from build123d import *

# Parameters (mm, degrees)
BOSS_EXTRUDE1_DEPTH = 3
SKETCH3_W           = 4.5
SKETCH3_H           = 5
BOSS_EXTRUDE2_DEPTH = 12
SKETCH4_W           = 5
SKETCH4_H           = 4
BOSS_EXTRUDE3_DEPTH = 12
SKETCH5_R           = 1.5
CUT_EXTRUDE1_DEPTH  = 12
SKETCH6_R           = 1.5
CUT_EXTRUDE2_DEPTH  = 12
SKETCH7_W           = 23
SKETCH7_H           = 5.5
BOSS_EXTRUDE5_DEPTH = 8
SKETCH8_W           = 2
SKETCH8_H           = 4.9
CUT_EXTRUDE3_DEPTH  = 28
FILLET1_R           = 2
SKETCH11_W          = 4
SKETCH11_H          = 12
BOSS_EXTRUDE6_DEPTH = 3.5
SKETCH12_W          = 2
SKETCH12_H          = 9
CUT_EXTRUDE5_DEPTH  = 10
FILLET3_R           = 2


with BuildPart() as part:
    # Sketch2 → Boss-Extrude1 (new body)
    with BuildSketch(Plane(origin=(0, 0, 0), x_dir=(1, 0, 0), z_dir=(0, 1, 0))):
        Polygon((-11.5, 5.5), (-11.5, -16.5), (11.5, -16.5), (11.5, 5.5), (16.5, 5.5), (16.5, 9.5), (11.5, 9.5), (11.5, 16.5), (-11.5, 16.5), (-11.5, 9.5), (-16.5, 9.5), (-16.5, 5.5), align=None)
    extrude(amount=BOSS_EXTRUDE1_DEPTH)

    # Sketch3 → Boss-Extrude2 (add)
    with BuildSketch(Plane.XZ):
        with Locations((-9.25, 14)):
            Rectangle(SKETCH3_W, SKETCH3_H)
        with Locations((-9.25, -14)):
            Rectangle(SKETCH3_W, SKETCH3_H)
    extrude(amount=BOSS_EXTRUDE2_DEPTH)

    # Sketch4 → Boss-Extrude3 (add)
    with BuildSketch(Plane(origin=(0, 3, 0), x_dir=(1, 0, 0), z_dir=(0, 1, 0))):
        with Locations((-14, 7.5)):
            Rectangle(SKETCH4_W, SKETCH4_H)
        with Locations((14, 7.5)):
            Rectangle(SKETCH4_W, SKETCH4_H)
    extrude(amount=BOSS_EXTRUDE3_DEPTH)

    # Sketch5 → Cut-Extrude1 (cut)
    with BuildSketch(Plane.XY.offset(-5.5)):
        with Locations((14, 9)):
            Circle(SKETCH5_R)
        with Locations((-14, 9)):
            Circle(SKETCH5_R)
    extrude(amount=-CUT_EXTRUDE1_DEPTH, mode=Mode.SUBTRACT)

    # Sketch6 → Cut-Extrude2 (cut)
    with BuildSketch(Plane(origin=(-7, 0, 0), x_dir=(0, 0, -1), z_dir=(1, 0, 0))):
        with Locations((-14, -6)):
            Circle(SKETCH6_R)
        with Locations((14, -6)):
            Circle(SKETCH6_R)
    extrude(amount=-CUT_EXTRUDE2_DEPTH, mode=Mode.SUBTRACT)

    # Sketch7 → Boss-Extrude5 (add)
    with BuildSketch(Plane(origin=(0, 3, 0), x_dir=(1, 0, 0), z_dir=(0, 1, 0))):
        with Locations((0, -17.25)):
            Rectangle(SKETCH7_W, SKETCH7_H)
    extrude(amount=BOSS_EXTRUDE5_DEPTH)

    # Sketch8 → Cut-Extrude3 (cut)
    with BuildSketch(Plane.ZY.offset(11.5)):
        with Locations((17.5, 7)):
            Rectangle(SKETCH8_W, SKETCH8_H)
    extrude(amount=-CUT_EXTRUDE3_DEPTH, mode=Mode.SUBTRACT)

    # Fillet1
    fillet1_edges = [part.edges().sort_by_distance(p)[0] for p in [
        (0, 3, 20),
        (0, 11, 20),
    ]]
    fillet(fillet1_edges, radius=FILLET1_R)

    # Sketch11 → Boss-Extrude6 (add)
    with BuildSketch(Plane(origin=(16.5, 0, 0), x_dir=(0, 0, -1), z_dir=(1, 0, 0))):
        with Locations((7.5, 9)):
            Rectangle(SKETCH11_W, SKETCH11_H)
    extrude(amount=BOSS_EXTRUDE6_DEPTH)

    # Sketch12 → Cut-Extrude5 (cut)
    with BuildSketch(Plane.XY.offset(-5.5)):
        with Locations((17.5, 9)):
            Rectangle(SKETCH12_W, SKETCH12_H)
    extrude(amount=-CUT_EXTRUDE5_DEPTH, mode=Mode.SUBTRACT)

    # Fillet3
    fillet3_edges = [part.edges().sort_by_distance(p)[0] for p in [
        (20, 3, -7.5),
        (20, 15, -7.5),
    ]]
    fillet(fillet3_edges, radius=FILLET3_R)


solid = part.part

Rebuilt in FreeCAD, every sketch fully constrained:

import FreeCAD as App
import Part
import Sketcher
from FreeCAD import Vector


def edges_at(feature, points):
    """Names of the edges that pass closest to the given points."""
    edges = feature.Shape.Edges
    near = lambda p: min(range(len(edges)), key=lambda i: edges[i].distToShape(Part.Vertex(*p))[0])
    return sorted({f"Edge{near(p) + 1}" for p in points})


def add_polygon(sketch, points):
    """Adds a closed chain of lines whose ends are joined by coincident constraints."""
    first, n = sketch.GeometryCount, len(points)
    for a, b in zip(points, points[1:] + points[:1]):
        sketch.addGeometry(Part.LineSegment(App.Vector(*a, 0), App.Vector(*b, 0)), False)
    for i in range(n):
        sketch.addConstraint(Sketcher.Constraint("Coincident", first + i, 2, first + (i + 1) % n, 1))

doc = App.newDocument("Part")
params = doc.addObject("Spreadsheet::Sheet", "Params")
for row, (alias, value) in enumerate([
    ("sketch1_width", "23 mm"),
    ("sketch1_width2", "5 mm"),
    ("sketch1_height", "22 mm"),
    ("sketch1_height2", "4 mm"),
    ("sketch1_height3", "7 mm"),
    ("pad1_length", "3 mm"),
    ("sketch2_height", "5 mm"),
    ("sketch2_width", "4.5 mm"),
    ("pad2_length", "12 mm"),
    ("sketch3_width", "5 mm"),
    ("sketch3_height", "4 mm"),
    ("pad3_length", "12 mm"),
    ("sketch4_diameter", "3 mm"),
    ("pocket1_length", "12 mm"),
    ("sketch5_diameter", "3 mm"),
    ("pocket2_length", "12 mm"),
    ("sketch6_width", "23 mm"),
    ("sketch6_height", "5.5 mm"),
    ("pad4_length", "8 mm"),
    ("sketch7_height", "2 mm"),
    ("sketch7_width", "4.9 mm"),
    ("pocket3_length", "28 mm"),
    ("fillet_radius", "2 mm"),
    ("sketch8_width", "12 mm"),
    ("sketch8_height", "4 mm"),
    ("pad5_length", "3.5 mm"),
    ("sketch9_width", "2 mm"),
    ("sketch9_height", "9 mm"),
    ("pocket4_length", "10 mm"),
    ("fillet2_radius", "2 mm"),
], start=1):
    params.set(f"A{row}", alias)
    params.set(f"B{row}", "=" + value)
    params.setAlias(f"B{row}", alias)

body = doc.addObject("PartDesign::Body", "Body")

# Sketch on XZ plane
sketch1 = body.newObject("Sketcher::SketchObject", "Sketch")
sketch1.AttachmentSupport = (doc.getObject("XZ_Plane"), [""])
sketch1.MapMode = "FlatFace"
add_polygon(sketch1, [(-11.5, -5.5), (-11.5, 16.5), (11.5, 16.5), (11.5, -5.5), (16.5, -5.5), (16.5, -9.5), (11.5, -9.5), (11.5, -16.5), (-11.5, -16.5), (-11.5, -9.5), (-16.5, -9.5), (-16.5, -5.5)])  # lines 0-11
sketch1.addConstraint(Sketcher.Constraint("Vertical", 0))
sketch1.addConstraint(Sketcher.Constraint("Horizontal", 1))
sketch1.addConstraint(Sketcher.Constraint("Vertical", 2))
sketch1.addConstraint(Sketcher.Constraint("Horizontal", 3))
sketch1.addConstraint(Sketcher.Constraint("Vertical", 4))
sketch1.addConstraint(Sketcher.Constraint("Horizontal", 5))
sketch1.addConstraint(Sketcher.Constraint("Vertical", 6))
sketch1.addConstraint(Sketcher.Constraint("Horizontal", 7))
sketch1.addConstraint(Sketcher.Constraint("Vertical", 8))
sketch1.addConstraint(Sketcher.Constraint("Horizontal", 9))
sketch1.addConstraint(Sketcher.Constraint("Vertical", 10))
sketch1.addConstraint(Sketcher.Constraint("Horizontal", 11))
sketch1.addConstraint(Sketcher.Constraint("Symmetric", 0, 2, 6, 2, -1, 1))
sketch1.addConstraint(Sketcher.Constraint("Symmetric", 5, 2, 8, 2, -2))
sketch1.addConstraint(Sketcher.Constraint("Symmetric", 3, 2, 10, 2, -2))
sketch1.addConstraint(Sketcher.Constraint("Vertical", 2, 2, 5, 2))
sketch1.addConstraint(Sketcher.Constraint("DistanceX", 1, 1, 1, 2, 23.0))
sketch1.addConstraint(Sketcher.Constraint("DistanceX", 3, 1, 3, 2, 5.0))
sketch1.addConstraint(Sketcher.Constraint("DistanceY", 0, 1, 0, 2, 22.0))
sketch1.addConstraint(Sketcher.Constraint("DistanceY", 4, 2, 4, 1, 4.0))
sketch1.addConstraint(Sketcher.Constraint("DistanceY", 6, 2, 6, 1, 7.0))
sketch1.setExpression("Constraints[28]", "Params.sketch1_width")
sketch1.setExpression("Constraints[29]", "Params.sketch1_width2")
sketch1.setExpression("Constraints[30]", "Params.sketch1_height")
sketch1.setExpression("Constraints[31]", "Params.sketch1_height2")
sketch1.setExpression("Constraints[32]", "Params.sketch1_height3")
pad1 = body.newObject("PartDesign::Pad", "Pad")
pad1.Profile = sketch1
pad1.setExpression("Length", "Params.pad1_length")
pad1.Reversed = True

# Sketch on XZ plane
sketch2 = body.newObject("Sketcher::SketchObject", "Sketch001")
sketch2.AttachmentSupport = (doc.getObject("XZ_Plane"), [""])
sketch2.MapMode = "FlatFace"
add_polygon(sketch2, [(-11.5, 16.5), (-11.5, 11.5), (-7, 11.5), (-7, 16.5)])  # lines 0-3
add_polygon(sketch2, [(-11.5, -11.5), (-11.5, -16.5), (-7, -16.5), (-7, -11.5)])  # lines 4-7
sketch2.addConstraint(Sketcher.Constraint("Vertical", 0))
sketch2.addConstraint(Sketcher.Constraint("Horizontal", 1))
sketch2.addConstraint(Sketcher.Constraint("Vertical", 2))
sketch2.addConstraint(Sketcher.Constraint("Horizontal", 3))
sketch2.addConstraint(Sketcher.Constraint("Vertical", 4))
sketch2.addConstraint(Sketcher.Constraint("Horizontal", 5))
sketch2.addConstraint(Sketcher.Constraint("Vertical", 6))
sketch2.addConstraint(Sketcher.Constraint("Horizontal", 7))
sketch2.addConstraint(Sketcher.Constraint("Symmetric", 3, 2, 4, 2, -1))
sketch2.addConstraint(Sketcher.Constraint("Symmetric", 1, 2, 6, 2, -1))
sketch2.addConstraint(Sketcher.Constraint("DistanceY", 0, 2, 0, 1, 5.0))
sketch2.addConstraint(Sketcher.Constraint("DistanceX", 1, 1, 1, 2, 4.5))
sketch2.addConstraint(Sketcher.Constraint("DistanceX", 1, 2, -1, 1, 7.0))
sketch2.addConstraint(Sketcher.Constraint("DistanceY", 4, 2, 0, 2, 28.0))
sketch2.setExpression("Constraints[18]", "Params.sketch2_height")
sketch2.setExpression("Constraints[19]", "Params.sketch2_width")
pad2 = body.newObject("PartDesign::Pad", "Pad001")
pad2.Profile = sketch2
pad2.setExpression("Length", "Params.pad2_length")

# Sketch on XZ plane
sketch3 = body.newObject("Sketcher::SketchObject", "Sketch002")
sketch3.AttachmentSupport = (doc.getObject("XZ_Plane"), [""])
sketch3.MapMode = "FlatFace"
sketch3.AttachmentOffset = App.Placement(Vector(0, 0, -3), App.Rotation())
add_polygon(sketch3, [(-16.5, -9.5), (-16.5, -5.5), (-11.5, -5.5), (-11.5, -9.5)])  # lines 0-3
add_polygon(sketch3, [(11.5, -9.5), (11.5, -5.5), (16.5, -5.5), (16.5, -9.5)])  # lines 4-7
sketch3.addConstraint(Sketcher.Constraint("Vertical", 0))
sketch3.addConstraint(Sketcher.Constraint("Horizontal", 1))
sketch3.addConstraint(Sketcher.Constraint("Vertical", 2))
sketch3.addConstraint(Sketcher.Constraint("Horizontal", 3))
sketch3.addConstraint(Sketcher.Constraint("Vertical", 4))
sketch3.addConstraint(Sketcher.Constraint("Horizontal", 5))
sketch3.addConstraint(Sketcher.Constraint("Vertical", 6))
sketch3.addConstraint(Sketcher.Constraint("Horizontal", 7))
sketch3.addConstraint(Sketcher.Constraint("Symmetric", 1, 2, 4, 2, -2))
sketch3.addConstraint(Sketcher.Constraint("Symmetric", 3, 2, 6, 2, -2))
sketch3.addConstraint(Sketcher.Constraint("DistanceX", 1, 1, 1, 2, 5.0))
sketch3.addConstraint(Sketcher.Constraint("DistanceY", 0, 1, 0, 2, 4.0))
sketch3.addConstraint(Sketcher.Constraint("DistanceX", 1, 2, 4, 2, 23.0))
sketch3.addConstraint(Sketcher.Constraint("DistanceY", 0, 2, -1, 1, 5.5))
sketch3.setExpression("Constraints[18]", "Params.sketch3_width")
sketch3.setExpression("Constraints[19]", "Params.sketch3_height")
pad3 = body.newObject("PartDesign::Pad", "Pad002")
pad3.Profile = sketch3
pad3.setExpression("Length", "Params.pad3_length")
pad3.Reversed = True

# Sketch on XY plane
sketch4 = body.newObject("Sketcher::SketchObject", "Sketch003")
sketch4.AttachmentSupport = (doc.getObject("XY_Plane"), [""])
sketch4.MapMode = "FlatFace"
sketch4.AttachmentOffset = App.Placement(Vector(0, 0, -5.5), App.Rotation())
sketch4.addGeometry(Part.Circle(Vector(14, 9, 0), Vector(0, 0, 1), 1.5), False)
sketch4.addGeometry(Part.Circle(Vector(-14, 9, 0), Vector(0, 0, 1), 1.5), False)
sketch4.addConstraint(Sketcher.Constraint("Equal", 0, 1))
sketch4.addConstraint(Sketcher.Constraint("Symmetric", 0, 3, 1, 3, -2))
sketch4.addConstraint(Sketcher.Constraint("Diameter", 0, 3.0))
sketch4.addConstraint(Sketcher.Constraint("DistanceX", -1, 1, 0, 3, 14.0))
sketch4.addConstraint(Sketcher.Constraint("DistanceY", -1, 1, 0, 3, 9.0))
sketch4.setExpression("Constraints[2]", "Params.sketch4_diameter")
pocket1 = body.newObject("PartDesign::Pocket", "Pocket")
pocket1.Profile = sketch4
pocket1.setExpression("Length", "Params.pocket1_length")

# Sketch on YZ plane
sketch5 = body.newObject("Sketcher::SketchObject", "Sketch004")
sketch5.AttachmentSupport = (doc.getObject("YZ_Plane"), [""])
sketch5.MapMode = "FlatFace"
sketch5.AttachmentOffset = App.Placement(Vector(0, 0, -7), App.Rotation())
sketch5.addGeometry(Part.Circle(Vector(-6, 14, 0), Vector(0, 0, 1), 1.5), False)
sketch5.addGeometry(Part.Circle(Vector(-6, -14, 0), Vector(0, 0, 1), 1.5), False)
sketch5.addConstraint(Sketcher.Constraint("Equal", 0, 1))
sketch5.addConstraint(Sketcher.Constraint("Symmetric", 0, 3, 1, 3, -1))
sketch5.addConstraint(Sketcher.Constraint("Diameter", 0, 3.0))
sketch5.addConstraint(Sketcher.Constraint("DistanceX", 0, 3, -1, 1, 6.0))
sketch5.addConstraint(Sketcher.Constraint("DistanceY", -1, 1, 0, 3, 14.0))
sketch5.setExpression("Constraints[2]", "Params.sketch5_diameter")
pocket2 = body.newObject("PartDesign::Pocket", "Pocket001")
pocket2.Profile = sketch5
pocket2.setExpression("Length", "Params.pocket2_length")

# Sketch on XZ plane
sketch6 = body.newObject("Sketcher::SketchObject", "Sketch005")
sketch6.AttachmentSupport = (doc.getObject("XZ_Plane"), [""])
sketch6.MapMode = "FlatFace"
sketch6.AttachmentOffset = App.Placement(Vector(0, 0, -3), App.Rotation())
add_polygon(sketch6, [(-11.5, 14.5), (-11.5, 20), (11.5, 20), (11.5, 14.5)])  # lines 0-3
sketch6.addConstraint(Sketcher.Constraint("Vertical", 0))
sketch6.addConstraint(Sketcher.Constraint("Horizontal", 1))
sketch6.addConstraint(Sketcher.Constraint("Vertical", 2))
sketch6.addConstraint(Sketcher.Constraint("Horizontal", 3))
sketch6.addConstraint(Sketcher.Constraint("DistanceX", 1, 1, 1, 2, 23.0))
sketch6.addConstraint(Sketcher.Constraint("DistanceY", 0, 1, 0, 2, 5.5))
sketch6.addConstraint(Sketcher.Constraint("DistanceY", -1, 1, 0, 2, 20.0))
sketch6.addConstraint(Sketcher.Constraint("DistanceX", 0, 2, -1, 1, 11.5))
sketch6.setExpression("Constraints[8]", "Params.sketch6_width")
sketch6.setExpression("Constraints[9]", "Params.sketch6_height")
pad4 = body.newObject("PartDesign::Pad", "Pad003")
pad4.Profile = sketch6
pad4.setExpression("Length", "Params.pad4_length")
pad4.Reversed = True

# Sketch on YZ plane
sketch7 = body.newObject("Sketcher::SketchObject", "Sketch006")
sketch7.AttachmentSupport = (doc.getObject("YZ_Plane"), [""])
sketch7.MapMode = "FlatFace"
sketch7.AttachmentOffset = App.Placement(Vector(0, 0, -11.5), App.Rotation())
add_polygon(sketch7, [(9.45, 16.5), (4.55, 16.5), (4.55, 18.5), (9.45, 18.5)])  # lines 0-3
sketch7.addConstraint(Sketcher.Constraint("Horizontal", 0))
sketch7.addConstraint(Sketcher.Constraint("Vertical", 1))
sketch7.addConstraint(Sketcher.Constraint("Horizontal", 2))
sketch7.addConstraint(Sketcher.Constraint("Vertical", 3))
sketch7.addConstraint(Sketcher.Constraint("DistanceY", 1, 1, 1, 2, 2.0))
sketch7.addConstraint(Sketcher.Constraint("DistanceX", 0, 2, 0, 1, 4.9))
sketch7.addConstraint(Sketcher.Constraint("DistanceY", -1, 1, 0, 2, 16.5))
sketch7.addConstraint(Sketcher.Constraint("DistanceX", -1, 1, 0, 2, 4.55))
sketch7.setExpression("Constraints[8]", "Params.sketch7_height")
sketch7.setExpression("Constraints[9]", "Params.sketch7_width")
pocket3 = body.newObject("PartDesign::Pocket", "Pocket002")
pocket3.Profile = sketch7
pocket3.setExpression("Length", "Params.pocket3_length")
pocket3.Reversed = True
doc.recompute()

fillet = body.newObject("PartDesign::Fillet", "Fillet")
fillet.Base = (pocket3, edges_at(pocket3, [(0, 3, 20), (0, 11, 20)]))
fillet.setExpression("Radius", "Params.fillet_radius")

# Sketch on YZ plane
sketch8 = body.newObject("Sketcher::SketchObject", "Sketch007")
sketch8.AttachmentSupport = (doc.getObject("YZ_Plane"), [""])
sketch8.MapMode = "FlatFace"
sketch8.AttachmentOffset = App.Placement(Vector(0, 0, 16.5), App.Rotation())
add_polygon(sketch8, [(15, -5.5), (3, -5.5), (3, -9.5), (15, -9.5)])  # lines 0-3
sketch8.addConstraint(Sketcher.Constraint("Horizontal", 0))
sketch8.addConstraint(Sketcher.Constraint("Vertical", 1))
sketch8.addConstraint(Sketcher.Constraint("Horizontal", 2))
sketch8.addConstraint(Sketcher.Constraint("Vertical", 3))
sketch8.addConstraint(Sketcher.Constraint("DistanceX", 0, 2, 0, 1, 12.0))
sketch8.addConstraint(Sketcher.Constraint("DistanceY", 1, 2, 1, 1, 4.0))
sketch8.addConstraint(Sketcher.Constraint("DistanceX", -1, 1, 0, 2, 3.0))
sketch8.addConstraint(Sketcher.Constraint("DistanceY", 0, 2, -1, 1, 5.5))
sketch8.setExpression("Constraints[8]", "Params.sketch8_width")
sketch8.setExpression("Constraints[9]", "Params.sketch8_height")
pad5 = body.newObject("PartDesign::Pad", "Pad004")
pad5.Profile = sketch8
pad5.setExpression("Length", "Params.pad5_length")

# Sketch on XY plane
sketch9 = body.newObject("Sketcher::SketchObject", "Sketch008")
sketch9.AttachmentSupport = (doc.getObject("XY_Plane"), [""])
sketch9.MapMode = "FlatFace"
sketch9.AttachmentOffset = App.Placement(Vector(0, 0, -5.5), App.Rotation())
add_polygon(sketch9, [(16.5, 13.5), (16.5, 4.5), (18.5, 4.5), (18.5, 13.5)])  # lines 0-3
sketch9.addConstraint(Sketcher.Constraint("Vertical", 0))
sketch9.addConstraint(Sketcher.Constraint("Horizontal", 1))
sketch9.addConstraint(Sketcher.Constraint("Vertical", 2))
sketch9.addConstraint(Sketcher.Constraint("Horizontal", 3))
sketch9.addConstraint(Sketcher.Constraint("DistanceX", 1, 1, 1, 2, 2.0))
sketch9.addConstraint(Sketcher.Constraint("DistanceY", 0, 2, 0, 1, 9.0))
sketch9.addConstraint(Sketcher.Constraint("DistanceX", -1, 1, 0, 2, 16.5))
sketch9.addConstraint(Sketcher.Constraint("DistanceY", -1, 1, 0, 2, 4.5))
sketch9.setExpression("Constraints[8]", "Params.sketch9_width")
sketch9.setExpression("Constraints[9]", "Params.sketch9_height")
pocket4 = body.newObject("PartDesign::Pocket", "Pocket003")
pocket4.Profile = sketch9
pocket4.setExpression("Length", "Params.pocket4_length")
doc.recompute()

fillet2 = body.newObject("PartDesign::Fillet", "Fillet001")
fillet2.Base = (pocket4, edges_at(pocket4, [(20, 3, -7.5), (20, 15, -7.5)]))
fillet2.setExpression("Radius", "Params.fillet2_radius")

doc.recompute()
